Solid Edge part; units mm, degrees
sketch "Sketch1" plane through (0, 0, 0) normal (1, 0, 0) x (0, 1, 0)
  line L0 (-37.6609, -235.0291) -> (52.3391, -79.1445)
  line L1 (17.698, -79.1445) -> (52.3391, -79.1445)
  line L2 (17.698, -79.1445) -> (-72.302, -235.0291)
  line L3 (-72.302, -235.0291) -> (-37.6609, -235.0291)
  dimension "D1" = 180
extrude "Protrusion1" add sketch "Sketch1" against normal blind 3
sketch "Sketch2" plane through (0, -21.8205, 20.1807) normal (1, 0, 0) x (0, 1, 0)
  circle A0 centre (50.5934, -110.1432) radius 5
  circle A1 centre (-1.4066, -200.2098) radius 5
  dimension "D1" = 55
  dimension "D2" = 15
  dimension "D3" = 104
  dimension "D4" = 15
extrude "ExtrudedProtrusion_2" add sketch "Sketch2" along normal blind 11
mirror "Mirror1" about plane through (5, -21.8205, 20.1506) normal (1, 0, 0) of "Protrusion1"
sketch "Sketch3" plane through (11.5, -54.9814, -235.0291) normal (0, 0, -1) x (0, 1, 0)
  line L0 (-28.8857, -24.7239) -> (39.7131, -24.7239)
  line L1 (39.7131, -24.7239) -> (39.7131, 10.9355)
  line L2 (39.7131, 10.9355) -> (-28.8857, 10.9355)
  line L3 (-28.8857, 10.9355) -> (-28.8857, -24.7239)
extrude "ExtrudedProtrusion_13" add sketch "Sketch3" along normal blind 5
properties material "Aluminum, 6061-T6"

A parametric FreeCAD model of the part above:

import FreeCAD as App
import Part
import Sketcher
from FreeCAD import Vector
Q = App.Units.Quantity


def add_polygon(sketch, points):
    """Adds a closed chain of lines whose ends are joined by coincident constraints."""
    first, n = sketch.GeometryCount, len(points)
    for a, b in zip(points, points[1:] + points[:1]):
        sketch.addGeometry(Part.LineSegment(App.Vector(*a, 0), App.Vector(*b, 0)), False)
    for i in range(n):
        sketch.addConstraint(Sketcher.Constraint("Coincident", first + i, 2, first + (i + 1) % n, 1))

doc = App.newDocument("Part")
body = doc.addObject("PartDesign::Body", "Body")

sketch1 = body.newObject("Sketcher::SketchObject", "Sketch")
sketch1.AttachmentSupport = (doc.getObject("YZ_Plane"), [""])
sketch1.MapMode = "FlatFace"
add_polygon(sketch1, [(-72, -235), (-38, -235), (52, -79), (18, -79)])
sketch1.addConstraint(Sketcher.Constraint("Horizontal", 0))
sketch1.addConstraint(Sketcher.Constraint("Horizontal", 2))
sketch1.addConstraint(Sketcher.Constraint("Parallel", 1, 3))
sketch1.addConstraint(Sketcher.Constraint("Angle", 1, Q("60 deg")))
sketch1.addConstraint(Sketcher.Constraint("Distance", 1, 180.0))
sketch1.addConstraint(Sketcher.Constraint("DistanceX", 0, 2, -1, 1, 37.661))
sketch1.addConstraint(Sketcher.Constraint("DistanceX", 0, 1, 0, 2, 34.641))
sketch1.addConstraint(Sketcher.Constraint("DistanceY", 0, 2, -1, 1, 235.029))
pad1 = body.newObject("PartDesign::Pad", "Pad")
pad1.Profile = sketch1
pad1.Length = 3
pad1.Reversed = True

sketch2 = body.newObject("Sketcher::SketchObject", "Sketch001")
sketch2.AttachmentSupport = (doc.getObject("YZ_Plane"), [""])
sketch2.MapMode = "FlatFace"
sketch2.addGeometry(Part.Circle(Vector(29, -90, 0), Vector(0, 0, 1), 5), False)
sketch2.addGeometry(Part.Circle(Vector(-23, -180, 0), Vector(0, 0, 1), 5), False)
sketch2.addConstraint(Sketcher.Constraint("Equal", 0, 1))
sketch2.addConstraint(Sketcher.Constraint("Diameter", 0, 10.0))
sketch2.addConstraint(Sketcher.Constraint("DistanceX", 1, 3, 0, 3, 52.0))
sketch2.addConstraint(Sketcher.Constraint("DistanceX", -1, 1, 0, 3, 28.773))
sketch2.addConstraint(Sketcher.Constraint("DistanceY", 1, 3, -1, 1, 180.029))
sketch2.addConstraint(Sketcher.Constraint("DistanceY", 0, 3, -1, 1, 89.9625))
pad2 = body.newObject("PartDesign::Pad", "Pad001")
pad2.Profile = sketch2
pad2.Length = 11
doc.recompute()

datumplane = body.newObject("PartDesign::Plane", "DatumPlane")
datumplane.AttachmentSupport = (doc.getObject("YZ_Plane"), [""])
datumplane.MapMode = "FlatFace"
datumplane.AttachmentOffset = App.Placement(Vector(0, 0, 5), App.Rotation())
mirrored = body.newObject("PartDesign::Mirrored", "Mirrored")
mirrored.Originals = [pad1]
mirrored.MirrorPlane = (datumplane, [""])
body.Tip = mirrored

sketch3 = body.newObject("Sketcher::SketchObject", "Sketch002")
sketch3.AttachmentSupport = (doc.getObject("XY_Plane"), [""])
sketch3.MapMode = "FlatFace"
sketch3.AttachmentOffset = App.Placement(Vector(0, 0, -235.0291), App.Rotation())
add_polygon(sketch3, [(22, -84), (-13, -84), (-13, -15), (22, -15)])
sketch3.addConstraint(Sketcher.Constraint("Horizontal", 0))
sketch3.addConstraint(Sketcher.Constraint("Vertical", 1))
sketch3.addConstraint(Sketcher.Constraint("Horizontal", 2))
sketch3.addConstraint(Sketcher.Constraint("Vertical", 3))
sketch3.addConstraint(Sketcher.Constraint("DistanceX", 0, 2, 0, 1, 35.6594))
sketch3.addConstraint(Sketcher.Constraint("DistanceY", 1, 1, 1, 2, 68.5988))
sketch3.addConstraint(Sketcher.Constraint("DistanceX", 0, 2, -1, 1, 13.224))
sketch3.addConstraint(Sketcher.Constraint("DistanceY", 0, 2, -1, 1, 83.867))
pad3 = body.newObject("PartDesign::Pad", "Pad002")
pad3.Profile = sketch3
pad3.Length = 5
pad3.Reversed = True

doc.recompute()
